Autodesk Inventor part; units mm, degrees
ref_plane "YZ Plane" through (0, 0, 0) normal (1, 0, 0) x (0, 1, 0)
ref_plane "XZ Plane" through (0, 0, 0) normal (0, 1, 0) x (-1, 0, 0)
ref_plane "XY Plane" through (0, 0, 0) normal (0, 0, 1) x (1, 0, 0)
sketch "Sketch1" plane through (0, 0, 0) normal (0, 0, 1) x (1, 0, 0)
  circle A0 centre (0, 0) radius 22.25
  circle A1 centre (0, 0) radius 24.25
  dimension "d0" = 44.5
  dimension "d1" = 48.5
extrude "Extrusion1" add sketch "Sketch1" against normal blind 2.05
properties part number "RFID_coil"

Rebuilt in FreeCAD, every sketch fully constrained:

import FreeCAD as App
import Part
import Sketcher
Q = App.Units.Quantity

doc = App.newDocument("Part")
params = doc.addObject("Spreadsheet::Sheet", "Params")
for row, (alias, value) in enumerate([
    ("sketch1_diameter", "48.5 mm"),
    ("sketch1_diameter2", "44.5 mm"),
    ("pad1_length", "2.05 mm"),
], start=1):
    params.set(f"A{row}", alias)
    params.set(f"B{row}", "=" + value)
    params.setAlias(f"B{row}", alias)

body = doc.addObject("PartDesign::Body", "Body")

# Sketch on XY plane
sketch1 = doc.addObject("Sketcher::SketchObject", "Sketch")
body.addObject(sketch1)
sketch1.AttachmentSupport = (doc.XY_Plane, [""])
sketch1.MapMode = "FlatFace"
sketch1.addGeometry([
    Part.Circle(App.Vector(0, 0, 0), App.Vector(0, 0, 1), 24.25),
    Part.Circle(App.Vector(0, 0, 0), App.Vector(0, 0, 1), 22.25),
], False)
sketch1.addConstraint([
    Sketcher.Constraint("Coincident", 0, 3, -1, 1),
    Sketcher.Constraint("Coincident", 1, 3, -1, 1),
    Sketcher.Constraint("Diameter", 0, Q("48.5 mm")),
    Sketcher.Constraint("Diameter", 1, Q("44.5 mm")),
])
sketch1.setExpression("Constraints[2]", "Params.sketch1_diameter")
sketch1.setExpression("Constraints[3]", "Params.sketch1_diameter2")
pad1 = doc.addObject("PartDesign::Pad", "Pad")
body.addObject(pad1)
pad1.Profile = sketch1
pad1.setExpression("Length", "Params.pad1_length")
pad1.Reversed = True

doc.recompute()
